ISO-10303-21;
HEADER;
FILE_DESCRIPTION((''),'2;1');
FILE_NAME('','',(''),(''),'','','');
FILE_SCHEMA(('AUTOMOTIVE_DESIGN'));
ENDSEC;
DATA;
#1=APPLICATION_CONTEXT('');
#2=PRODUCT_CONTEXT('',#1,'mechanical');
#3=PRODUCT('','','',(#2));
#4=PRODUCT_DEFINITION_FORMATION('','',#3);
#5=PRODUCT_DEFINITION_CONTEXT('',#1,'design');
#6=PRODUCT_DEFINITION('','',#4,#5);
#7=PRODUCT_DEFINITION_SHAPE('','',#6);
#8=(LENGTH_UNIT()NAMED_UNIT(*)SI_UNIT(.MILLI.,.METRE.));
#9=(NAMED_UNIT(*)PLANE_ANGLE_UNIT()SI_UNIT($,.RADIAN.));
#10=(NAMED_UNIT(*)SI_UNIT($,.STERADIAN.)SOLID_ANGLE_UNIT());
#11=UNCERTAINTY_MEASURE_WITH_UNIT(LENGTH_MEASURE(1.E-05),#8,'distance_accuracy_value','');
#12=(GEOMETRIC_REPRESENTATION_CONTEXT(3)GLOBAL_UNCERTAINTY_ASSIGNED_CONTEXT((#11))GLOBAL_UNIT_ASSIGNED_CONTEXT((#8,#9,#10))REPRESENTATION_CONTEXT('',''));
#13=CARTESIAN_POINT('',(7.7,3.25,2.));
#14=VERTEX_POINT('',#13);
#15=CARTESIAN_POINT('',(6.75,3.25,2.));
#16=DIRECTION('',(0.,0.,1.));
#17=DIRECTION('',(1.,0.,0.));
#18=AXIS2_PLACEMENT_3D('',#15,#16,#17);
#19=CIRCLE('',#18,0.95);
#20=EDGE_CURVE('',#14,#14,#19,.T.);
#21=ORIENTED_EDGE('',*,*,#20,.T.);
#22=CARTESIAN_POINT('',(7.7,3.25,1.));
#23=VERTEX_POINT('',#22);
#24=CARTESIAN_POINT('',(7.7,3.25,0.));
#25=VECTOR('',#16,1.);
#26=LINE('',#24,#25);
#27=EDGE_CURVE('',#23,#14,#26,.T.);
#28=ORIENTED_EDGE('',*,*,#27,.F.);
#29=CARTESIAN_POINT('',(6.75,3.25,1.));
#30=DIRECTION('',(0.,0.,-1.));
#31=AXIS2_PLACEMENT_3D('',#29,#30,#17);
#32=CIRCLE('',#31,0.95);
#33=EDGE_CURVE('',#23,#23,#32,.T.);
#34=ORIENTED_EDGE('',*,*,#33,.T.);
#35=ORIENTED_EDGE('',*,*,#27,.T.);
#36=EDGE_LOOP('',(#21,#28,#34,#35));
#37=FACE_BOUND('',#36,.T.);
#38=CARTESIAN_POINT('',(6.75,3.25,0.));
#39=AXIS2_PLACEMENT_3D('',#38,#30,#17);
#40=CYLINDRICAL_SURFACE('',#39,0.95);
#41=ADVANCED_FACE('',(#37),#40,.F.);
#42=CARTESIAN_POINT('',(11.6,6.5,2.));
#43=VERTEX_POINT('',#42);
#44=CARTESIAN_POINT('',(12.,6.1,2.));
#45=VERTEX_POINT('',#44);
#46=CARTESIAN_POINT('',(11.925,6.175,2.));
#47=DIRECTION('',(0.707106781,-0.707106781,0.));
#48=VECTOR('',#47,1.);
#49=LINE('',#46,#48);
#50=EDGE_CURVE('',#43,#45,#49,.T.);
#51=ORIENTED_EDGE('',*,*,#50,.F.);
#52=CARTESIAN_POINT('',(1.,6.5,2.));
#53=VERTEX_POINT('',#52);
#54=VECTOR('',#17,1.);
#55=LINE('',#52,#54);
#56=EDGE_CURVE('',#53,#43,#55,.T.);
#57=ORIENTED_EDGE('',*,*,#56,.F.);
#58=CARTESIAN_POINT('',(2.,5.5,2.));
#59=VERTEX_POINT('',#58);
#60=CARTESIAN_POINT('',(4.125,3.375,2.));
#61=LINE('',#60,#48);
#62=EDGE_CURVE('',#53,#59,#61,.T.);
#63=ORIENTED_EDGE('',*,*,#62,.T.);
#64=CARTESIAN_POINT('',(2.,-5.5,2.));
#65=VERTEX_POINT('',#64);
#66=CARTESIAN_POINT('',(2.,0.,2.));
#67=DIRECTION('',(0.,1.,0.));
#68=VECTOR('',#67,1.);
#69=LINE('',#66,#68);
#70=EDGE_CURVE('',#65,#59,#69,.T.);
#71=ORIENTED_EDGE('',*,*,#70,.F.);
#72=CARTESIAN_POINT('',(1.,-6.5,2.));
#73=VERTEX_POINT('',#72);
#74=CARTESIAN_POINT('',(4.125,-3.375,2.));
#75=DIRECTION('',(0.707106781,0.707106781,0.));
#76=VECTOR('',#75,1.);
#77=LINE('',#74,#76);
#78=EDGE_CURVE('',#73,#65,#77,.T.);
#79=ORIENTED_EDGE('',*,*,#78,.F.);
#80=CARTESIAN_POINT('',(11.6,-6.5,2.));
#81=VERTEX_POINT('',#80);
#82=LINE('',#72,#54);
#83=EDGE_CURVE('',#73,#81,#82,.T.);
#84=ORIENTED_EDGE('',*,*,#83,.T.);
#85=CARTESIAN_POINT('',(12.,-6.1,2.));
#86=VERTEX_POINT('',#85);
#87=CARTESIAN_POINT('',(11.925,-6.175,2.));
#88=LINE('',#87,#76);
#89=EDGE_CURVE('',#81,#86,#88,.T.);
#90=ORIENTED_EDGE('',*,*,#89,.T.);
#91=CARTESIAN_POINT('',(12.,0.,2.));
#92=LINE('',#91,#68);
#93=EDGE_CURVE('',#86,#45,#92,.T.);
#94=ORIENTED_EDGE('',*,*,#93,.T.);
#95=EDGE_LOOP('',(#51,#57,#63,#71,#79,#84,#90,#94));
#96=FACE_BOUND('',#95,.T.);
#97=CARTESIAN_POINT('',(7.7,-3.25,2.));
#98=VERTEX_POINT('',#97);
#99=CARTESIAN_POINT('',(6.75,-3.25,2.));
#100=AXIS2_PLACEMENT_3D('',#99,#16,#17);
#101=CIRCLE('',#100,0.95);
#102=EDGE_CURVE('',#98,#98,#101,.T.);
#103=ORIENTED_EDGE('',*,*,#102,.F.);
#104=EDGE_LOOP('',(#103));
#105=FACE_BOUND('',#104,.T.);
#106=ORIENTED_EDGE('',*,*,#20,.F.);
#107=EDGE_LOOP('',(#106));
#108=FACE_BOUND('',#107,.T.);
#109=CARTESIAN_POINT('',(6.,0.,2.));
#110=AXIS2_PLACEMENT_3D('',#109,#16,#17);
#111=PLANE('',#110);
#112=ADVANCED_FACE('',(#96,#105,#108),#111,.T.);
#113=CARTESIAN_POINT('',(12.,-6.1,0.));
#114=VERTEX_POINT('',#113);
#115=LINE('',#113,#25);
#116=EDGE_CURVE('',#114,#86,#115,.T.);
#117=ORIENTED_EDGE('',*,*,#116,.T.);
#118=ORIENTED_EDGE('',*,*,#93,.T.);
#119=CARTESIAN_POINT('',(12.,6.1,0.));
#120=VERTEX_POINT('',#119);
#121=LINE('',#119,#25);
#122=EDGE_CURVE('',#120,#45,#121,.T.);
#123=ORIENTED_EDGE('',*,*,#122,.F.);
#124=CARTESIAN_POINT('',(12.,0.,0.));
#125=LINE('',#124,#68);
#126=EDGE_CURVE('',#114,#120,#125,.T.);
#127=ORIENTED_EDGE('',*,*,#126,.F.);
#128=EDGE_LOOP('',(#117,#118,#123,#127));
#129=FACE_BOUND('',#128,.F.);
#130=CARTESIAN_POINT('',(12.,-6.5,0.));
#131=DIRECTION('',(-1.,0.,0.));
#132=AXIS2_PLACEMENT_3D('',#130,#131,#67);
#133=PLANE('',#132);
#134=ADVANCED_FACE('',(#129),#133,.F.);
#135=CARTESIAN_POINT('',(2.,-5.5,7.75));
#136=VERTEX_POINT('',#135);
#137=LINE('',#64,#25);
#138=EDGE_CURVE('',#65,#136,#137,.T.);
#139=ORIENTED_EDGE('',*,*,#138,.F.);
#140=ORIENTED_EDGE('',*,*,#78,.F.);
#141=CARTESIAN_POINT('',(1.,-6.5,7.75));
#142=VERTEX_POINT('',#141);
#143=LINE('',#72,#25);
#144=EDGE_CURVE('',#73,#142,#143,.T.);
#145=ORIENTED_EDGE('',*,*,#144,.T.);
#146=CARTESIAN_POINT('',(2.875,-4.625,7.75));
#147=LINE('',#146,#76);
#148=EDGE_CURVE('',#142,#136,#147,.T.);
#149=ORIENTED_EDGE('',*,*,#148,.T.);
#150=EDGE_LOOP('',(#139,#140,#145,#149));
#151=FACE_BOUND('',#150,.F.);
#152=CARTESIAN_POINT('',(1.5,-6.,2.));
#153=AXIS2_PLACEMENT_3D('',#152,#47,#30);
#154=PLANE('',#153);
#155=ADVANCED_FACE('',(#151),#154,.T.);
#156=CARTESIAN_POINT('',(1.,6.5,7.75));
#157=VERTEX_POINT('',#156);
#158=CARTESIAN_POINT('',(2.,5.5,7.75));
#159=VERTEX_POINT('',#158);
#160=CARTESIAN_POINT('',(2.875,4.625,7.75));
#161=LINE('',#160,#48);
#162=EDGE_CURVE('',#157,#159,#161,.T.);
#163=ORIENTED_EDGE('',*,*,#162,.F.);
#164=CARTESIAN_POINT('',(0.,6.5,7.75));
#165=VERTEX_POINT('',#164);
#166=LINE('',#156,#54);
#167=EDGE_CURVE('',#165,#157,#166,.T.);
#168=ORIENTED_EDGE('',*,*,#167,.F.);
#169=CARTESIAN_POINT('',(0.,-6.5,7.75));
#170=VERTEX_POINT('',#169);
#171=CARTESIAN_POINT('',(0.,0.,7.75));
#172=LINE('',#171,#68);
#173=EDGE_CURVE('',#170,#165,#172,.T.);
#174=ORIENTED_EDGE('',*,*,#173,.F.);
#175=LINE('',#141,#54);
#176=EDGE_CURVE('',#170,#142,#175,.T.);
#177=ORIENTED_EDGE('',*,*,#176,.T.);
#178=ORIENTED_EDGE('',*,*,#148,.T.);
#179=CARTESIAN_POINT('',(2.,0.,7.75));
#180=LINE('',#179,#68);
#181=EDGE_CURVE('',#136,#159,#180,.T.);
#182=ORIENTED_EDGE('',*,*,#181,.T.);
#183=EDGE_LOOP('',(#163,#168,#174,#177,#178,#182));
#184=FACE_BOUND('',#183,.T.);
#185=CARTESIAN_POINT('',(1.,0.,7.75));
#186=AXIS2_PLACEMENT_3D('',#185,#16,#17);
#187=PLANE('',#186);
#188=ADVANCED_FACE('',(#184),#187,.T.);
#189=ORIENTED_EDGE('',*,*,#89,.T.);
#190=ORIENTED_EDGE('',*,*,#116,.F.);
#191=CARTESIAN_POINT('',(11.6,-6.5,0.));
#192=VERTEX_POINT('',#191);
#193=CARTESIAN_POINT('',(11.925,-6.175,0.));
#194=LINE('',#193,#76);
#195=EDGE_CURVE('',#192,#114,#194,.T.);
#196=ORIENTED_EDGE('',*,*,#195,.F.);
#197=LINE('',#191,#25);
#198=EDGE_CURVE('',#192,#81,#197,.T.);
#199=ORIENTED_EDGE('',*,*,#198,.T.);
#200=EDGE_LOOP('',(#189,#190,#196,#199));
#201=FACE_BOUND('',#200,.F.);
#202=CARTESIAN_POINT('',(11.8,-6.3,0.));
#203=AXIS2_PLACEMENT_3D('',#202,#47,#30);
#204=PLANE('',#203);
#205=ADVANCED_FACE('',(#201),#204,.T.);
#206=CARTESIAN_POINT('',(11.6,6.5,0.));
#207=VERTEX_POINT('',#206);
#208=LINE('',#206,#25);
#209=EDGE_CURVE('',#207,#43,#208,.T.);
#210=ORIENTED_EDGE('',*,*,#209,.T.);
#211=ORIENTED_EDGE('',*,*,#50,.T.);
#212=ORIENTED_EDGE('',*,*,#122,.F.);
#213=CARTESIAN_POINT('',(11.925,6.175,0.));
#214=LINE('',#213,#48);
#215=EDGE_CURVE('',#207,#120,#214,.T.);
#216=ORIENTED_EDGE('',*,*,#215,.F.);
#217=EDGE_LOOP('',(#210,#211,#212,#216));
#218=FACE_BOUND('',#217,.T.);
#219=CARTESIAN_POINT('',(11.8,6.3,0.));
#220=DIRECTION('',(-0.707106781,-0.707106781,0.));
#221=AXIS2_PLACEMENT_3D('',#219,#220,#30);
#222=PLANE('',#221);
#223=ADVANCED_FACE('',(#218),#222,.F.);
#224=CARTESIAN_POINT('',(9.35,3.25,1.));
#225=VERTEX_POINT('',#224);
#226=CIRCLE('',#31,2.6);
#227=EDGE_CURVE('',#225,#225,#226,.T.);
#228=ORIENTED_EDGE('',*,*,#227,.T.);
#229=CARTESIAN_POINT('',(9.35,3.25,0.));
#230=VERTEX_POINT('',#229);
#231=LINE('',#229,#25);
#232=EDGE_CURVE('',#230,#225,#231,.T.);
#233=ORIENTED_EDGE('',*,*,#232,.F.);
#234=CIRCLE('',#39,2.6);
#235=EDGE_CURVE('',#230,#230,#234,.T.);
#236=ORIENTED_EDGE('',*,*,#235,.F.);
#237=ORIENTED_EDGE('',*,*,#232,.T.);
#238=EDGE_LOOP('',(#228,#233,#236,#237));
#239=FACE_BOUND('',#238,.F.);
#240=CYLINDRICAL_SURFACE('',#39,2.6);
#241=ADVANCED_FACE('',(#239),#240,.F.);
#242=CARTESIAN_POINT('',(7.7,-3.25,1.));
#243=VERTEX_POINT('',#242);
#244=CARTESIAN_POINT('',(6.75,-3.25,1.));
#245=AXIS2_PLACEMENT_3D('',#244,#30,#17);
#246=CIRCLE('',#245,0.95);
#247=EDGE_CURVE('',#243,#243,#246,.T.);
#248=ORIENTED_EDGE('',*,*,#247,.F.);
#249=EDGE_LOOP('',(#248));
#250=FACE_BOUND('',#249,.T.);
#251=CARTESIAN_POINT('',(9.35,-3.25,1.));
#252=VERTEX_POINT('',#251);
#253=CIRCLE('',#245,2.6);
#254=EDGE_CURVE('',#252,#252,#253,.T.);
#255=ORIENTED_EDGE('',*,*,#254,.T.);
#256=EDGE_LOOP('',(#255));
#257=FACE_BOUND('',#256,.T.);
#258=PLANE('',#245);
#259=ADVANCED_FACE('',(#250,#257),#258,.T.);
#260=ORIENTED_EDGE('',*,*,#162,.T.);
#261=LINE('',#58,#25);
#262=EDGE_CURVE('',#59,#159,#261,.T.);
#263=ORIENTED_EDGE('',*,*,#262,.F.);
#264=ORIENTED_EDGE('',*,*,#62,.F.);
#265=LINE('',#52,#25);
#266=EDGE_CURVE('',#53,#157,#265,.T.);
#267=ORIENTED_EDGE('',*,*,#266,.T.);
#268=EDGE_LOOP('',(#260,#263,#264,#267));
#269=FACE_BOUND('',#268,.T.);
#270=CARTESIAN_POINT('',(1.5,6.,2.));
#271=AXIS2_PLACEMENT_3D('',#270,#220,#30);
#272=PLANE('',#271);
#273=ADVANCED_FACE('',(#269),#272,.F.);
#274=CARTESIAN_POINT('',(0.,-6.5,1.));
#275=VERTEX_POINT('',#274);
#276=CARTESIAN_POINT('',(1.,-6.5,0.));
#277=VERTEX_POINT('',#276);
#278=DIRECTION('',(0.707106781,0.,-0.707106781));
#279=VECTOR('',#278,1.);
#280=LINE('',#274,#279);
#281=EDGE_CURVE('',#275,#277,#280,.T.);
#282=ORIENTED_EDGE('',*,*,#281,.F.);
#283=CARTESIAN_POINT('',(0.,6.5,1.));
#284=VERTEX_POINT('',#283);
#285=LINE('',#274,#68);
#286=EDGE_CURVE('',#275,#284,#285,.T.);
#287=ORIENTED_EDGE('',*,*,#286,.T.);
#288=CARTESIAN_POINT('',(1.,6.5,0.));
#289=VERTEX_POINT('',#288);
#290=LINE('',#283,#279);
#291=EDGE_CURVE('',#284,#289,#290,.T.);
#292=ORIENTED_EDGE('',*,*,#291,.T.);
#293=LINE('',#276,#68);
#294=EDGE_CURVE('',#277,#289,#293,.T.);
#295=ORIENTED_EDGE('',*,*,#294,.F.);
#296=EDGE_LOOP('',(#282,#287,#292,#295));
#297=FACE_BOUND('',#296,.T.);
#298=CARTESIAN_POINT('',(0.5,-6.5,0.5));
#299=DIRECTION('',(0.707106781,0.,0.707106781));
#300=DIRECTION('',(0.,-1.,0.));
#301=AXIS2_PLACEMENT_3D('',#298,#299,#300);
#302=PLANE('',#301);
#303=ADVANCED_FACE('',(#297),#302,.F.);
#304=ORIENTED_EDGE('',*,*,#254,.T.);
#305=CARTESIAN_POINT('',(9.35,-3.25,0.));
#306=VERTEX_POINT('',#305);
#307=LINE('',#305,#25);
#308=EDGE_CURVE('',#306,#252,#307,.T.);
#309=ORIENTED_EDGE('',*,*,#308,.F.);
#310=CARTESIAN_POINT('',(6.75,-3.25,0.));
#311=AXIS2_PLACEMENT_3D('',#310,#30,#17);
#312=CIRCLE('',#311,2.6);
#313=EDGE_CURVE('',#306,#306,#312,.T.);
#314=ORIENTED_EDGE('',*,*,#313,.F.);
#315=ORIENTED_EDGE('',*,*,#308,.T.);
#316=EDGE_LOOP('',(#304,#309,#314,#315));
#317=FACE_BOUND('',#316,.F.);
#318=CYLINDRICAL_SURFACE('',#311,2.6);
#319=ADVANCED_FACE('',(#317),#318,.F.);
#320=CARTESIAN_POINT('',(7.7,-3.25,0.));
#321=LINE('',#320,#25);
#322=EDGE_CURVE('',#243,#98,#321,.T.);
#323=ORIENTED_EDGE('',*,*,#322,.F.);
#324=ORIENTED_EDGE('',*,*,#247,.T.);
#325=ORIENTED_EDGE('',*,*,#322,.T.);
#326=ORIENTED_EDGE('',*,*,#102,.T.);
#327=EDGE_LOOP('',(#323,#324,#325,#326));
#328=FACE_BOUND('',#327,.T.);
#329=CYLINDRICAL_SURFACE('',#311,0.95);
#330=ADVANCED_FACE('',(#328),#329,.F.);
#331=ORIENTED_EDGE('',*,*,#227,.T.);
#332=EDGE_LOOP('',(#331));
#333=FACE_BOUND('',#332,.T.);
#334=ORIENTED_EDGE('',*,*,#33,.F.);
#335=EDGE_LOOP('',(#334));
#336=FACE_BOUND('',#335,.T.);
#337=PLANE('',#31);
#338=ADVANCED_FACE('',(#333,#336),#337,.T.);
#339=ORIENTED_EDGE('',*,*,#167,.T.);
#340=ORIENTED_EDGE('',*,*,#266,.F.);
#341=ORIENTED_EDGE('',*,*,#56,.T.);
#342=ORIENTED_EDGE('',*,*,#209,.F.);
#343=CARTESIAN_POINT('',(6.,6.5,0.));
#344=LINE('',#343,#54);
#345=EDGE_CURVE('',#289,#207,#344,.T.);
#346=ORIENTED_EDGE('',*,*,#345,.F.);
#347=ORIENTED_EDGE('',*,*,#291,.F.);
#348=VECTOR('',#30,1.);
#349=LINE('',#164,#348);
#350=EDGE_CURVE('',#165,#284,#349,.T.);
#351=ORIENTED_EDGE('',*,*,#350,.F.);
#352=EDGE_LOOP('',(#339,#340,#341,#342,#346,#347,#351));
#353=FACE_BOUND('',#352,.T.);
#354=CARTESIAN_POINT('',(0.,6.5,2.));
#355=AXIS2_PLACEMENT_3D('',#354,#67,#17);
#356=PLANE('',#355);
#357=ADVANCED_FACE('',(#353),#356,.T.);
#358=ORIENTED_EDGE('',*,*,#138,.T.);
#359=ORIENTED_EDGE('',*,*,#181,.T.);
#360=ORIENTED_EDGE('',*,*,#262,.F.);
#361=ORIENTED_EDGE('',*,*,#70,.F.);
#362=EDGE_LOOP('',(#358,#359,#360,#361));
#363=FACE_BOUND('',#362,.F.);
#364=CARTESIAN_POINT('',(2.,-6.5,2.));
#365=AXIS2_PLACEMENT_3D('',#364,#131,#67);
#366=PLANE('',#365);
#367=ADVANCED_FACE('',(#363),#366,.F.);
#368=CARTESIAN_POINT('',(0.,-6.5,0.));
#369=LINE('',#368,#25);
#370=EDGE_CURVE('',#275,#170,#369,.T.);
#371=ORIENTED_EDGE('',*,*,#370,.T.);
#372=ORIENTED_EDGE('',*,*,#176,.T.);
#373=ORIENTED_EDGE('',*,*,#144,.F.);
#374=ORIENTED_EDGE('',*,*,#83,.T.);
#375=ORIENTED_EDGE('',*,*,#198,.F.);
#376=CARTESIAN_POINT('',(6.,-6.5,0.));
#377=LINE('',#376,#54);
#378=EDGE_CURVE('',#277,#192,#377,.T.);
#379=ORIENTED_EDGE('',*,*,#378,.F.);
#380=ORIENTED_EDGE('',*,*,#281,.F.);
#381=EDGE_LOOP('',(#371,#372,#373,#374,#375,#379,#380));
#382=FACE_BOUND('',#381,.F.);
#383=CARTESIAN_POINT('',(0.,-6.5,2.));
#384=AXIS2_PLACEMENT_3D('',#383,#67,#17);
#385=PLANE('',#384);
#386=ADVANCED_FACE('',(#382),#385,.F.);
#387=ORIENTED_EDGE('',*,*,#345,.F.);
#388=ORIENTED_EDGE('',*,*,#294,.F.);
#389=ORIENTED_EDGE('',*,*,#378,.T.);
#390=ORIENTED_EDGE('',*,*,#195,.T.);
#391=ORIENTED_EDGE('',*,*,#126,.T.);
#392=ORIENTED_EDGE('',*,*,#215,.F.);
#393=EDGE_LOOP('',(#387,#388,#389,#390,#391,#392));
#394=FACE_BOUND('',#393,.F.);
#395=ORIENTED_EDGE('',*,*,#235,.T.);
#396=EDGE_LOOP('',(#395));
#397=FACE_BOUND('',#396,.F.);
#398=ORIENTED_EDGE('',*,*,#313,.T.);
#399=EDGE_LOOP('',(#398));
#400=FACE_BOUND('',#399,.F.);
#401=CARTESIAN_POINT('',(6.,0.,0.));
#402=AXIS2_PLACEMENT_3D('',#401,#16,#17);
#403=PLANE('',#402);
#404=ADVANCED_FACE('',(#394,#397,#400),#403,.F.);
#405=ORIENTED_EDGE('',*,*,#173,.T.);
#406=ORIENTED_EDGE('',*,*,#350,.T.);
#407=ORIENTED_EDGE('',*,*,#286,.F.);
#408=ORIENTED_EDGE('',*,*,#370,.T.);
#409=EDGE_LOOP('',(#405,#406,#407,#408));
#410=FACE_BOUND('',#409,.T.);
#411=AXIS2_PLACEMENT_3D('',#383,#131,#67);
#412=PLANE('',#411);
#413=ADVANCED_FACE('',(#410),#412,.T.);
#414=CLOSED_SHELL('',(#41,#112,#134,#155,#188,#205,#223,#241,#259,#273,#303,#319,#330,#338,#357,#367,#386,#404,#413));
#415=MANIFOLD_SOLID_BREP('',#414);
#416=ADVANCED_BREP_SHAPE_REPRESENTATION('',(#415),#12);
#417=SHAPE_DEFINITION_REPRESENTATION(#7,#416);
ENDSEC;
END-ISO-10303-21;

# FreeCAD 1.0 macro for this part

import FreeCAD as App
import Part
import Sketcher
Q = App.Units.Quantity


def edges_at(feature, points):
    """Names of the edges that pass closest to the given points."""
    edges = feature.Shape.Edges
    near = lambda p: min(range(len(edges)), key=lambda i: edges[i].distToShape(Part.Vertex(*p))[0])
    return sorted({f"Edge{near(p) + 1}" for p in points})

doc = App.newDocument("Part")
params = doc.addObject("Spreadsheet::Sheet", "Params")
for row, (alias, value) in enumerate([
    ("sketch1_diameter", "1.9 mm"),
    ("sketch1_width", "12 mm"),
    ("sketch1_height", "13 mm"),
    ("pad1_length", "2 mm"),
    ("sketch2_width", "2 mm"),
    ("sketch2_height", "13 mm"),
    ("pad2_length", "5.75 mm"),
    ("sketch3_diameter", "5.2 mm"),
    ("pocket1_length", "1 mm"),
    ("chamfer_size", "1 mm"),
    ("chamfer2_size", "1 mm"),
    ("chamfer3_size", "0.4 mm"),
], start=1):
    params.set(f"A{row}", alias)
    params.set(f"B{row}", "=" + value)
    params.setAlias(f"B{row}", alias)

body = doc.addObject("PartDesign::Body", "Body")

# Sketch on XY plane
sketch1 = body.newObject("Sketcher::SketchObject", "Sketch")
sketch1.AttachmentSupport = (doc.getObject("XY_Plane"), [""])
sketch1.MapMode = "FlatFace"
sketch1.addGeometry([
    Part.LineSegment(App.Vector(0, 6.5, 0), App.Vector(0, -6.5, 0)),  # 0
    Part.LineSegment(App.Vector(0, -6.5, 0), App.Vector(12, -6.5, 0)),  # 1
    Part.LineSegment(App.Vector(12, -6.5, 0), App.Vector(12, 6.5, 0)),  # 2
    Part.LineSegment(App.Vector(12, 6.5, 0), App.Vector(0, 6.5, 0)),  # 3
    Part.Circle(App.Vector(6.8, -3.2, 0), App.Vector(0, 0, 1), 0.9),  # 4
    Part.Circle(App.Vector(6.8, 3.2, 0), App.Vector(0, 0, 1), 0.9),  # 5
], False)
sketch1.addConstraint([
    Sketcher.Constraint("Coincident", 0, 2, 1, 1),
    Sketcher.Constraint("Coincident", 1, 2, 2, 1),
    Sketcher.Constraint("Coincident", 2, 2, 3, 1),
    Sketcher.Constraint("Coincident", 3, 2, 0, 1),
    Sketcher.Constraint("Vertical", 0),
    Sketcher.Constraint("Horizontal", 1),
    Sketcher.Constraint("Vertical", 2),
    Sketcher.Constraint("Horizontal", 3),
    Sketcher.Constraint("Equal", 4, 5),
    Sketcher.Constraint("Symmetric", 0, 2, 3, 2, -1, 1),
    Sketcher.Constraint("Symmetric", 4, 3, 5, 3, -1),
    Sketcher.Constraint("Diameter", 4, Q("1.9 mm")),
    Sketcher.Constraint("DistanceX", 1, 1, 1, 2, Q("12 mm")),
    Sketcher.Constraint("DistanceY", 0, 2, 0, 1, Q("13 mm")),
    Sketcher.Constraint("DistanceY", 4, 3, 5, 3, Q("6.5 mm")),
    Sketcher.Constraint("DistanceX", -1, 1, 4, 3, Q("6.75 mm")),
])
sketch1.setExpression("Constraints[11]", "Params.sketch1_diameter")
sketch1.setExpression("Constraints[12]", "Params.sketch1_width")
sketch1.setExpression("Constraints[13]", "Params.sketch1_height")
pad1 = body.newObject("PartDesign::Pad", "Pad")
pad1.Profile = sketch1
pad1.setExpression("Length", "Params.pad1_length")

# Sketch on XY plane
sketch2 = body.newObject("Sketcher::SketchObject", "Sketch001")
sketch2.AttachmentSupport = (doc.getObject("XY_Plane"), [""])
sketch2.MapMode = "FlatFace"
sketch2.AttachmentOffset = App.Placement(App.Vector(0, 0, 2), App.Rotation())
sketch2.addGeometry([
    Part.LineSegment(App.Vector(0, 6.5, 0), App.Vector(0, -6.5, 0)),
    Part.LineSegment(App.Vector(0, -6.5, 0), App.Vector(2, -6.5, 0)),
    Part.LineSegment(App.Vector(2, -6.5, 0), App.Vector(2, 6.5, 0)),
    Part.LineSegment(App.Vector(2, 6.5, 0), App.Vector(0, 6.5, 0)),
], False)
sketch2.addConstraint([
    Sketcher.Constraint("Coincident", 0, 2, 1, 1),
    Sketcher.Constraint("Coincident", 1, 2, 2, 1),
    Sketcher.Constraint("Coincident", 2, 2, 3, 1),
    Sketcher.Constraint("Coincident", 3, 2, 0, 1),
    Sketcher.Constraint("Vertical", 0),
    Sketcher.Constraint("Horizontal", 1),
    Sketcher.Constraint("Vertical", 2),
    Sketcher.Constraint("Horizontal", 3),
    Sketcher.Constraint("Symmetric", 0, 2, 3, 2, -1, 1),
    Sketcher.Constraint("DistanceX", 1, 1, 1, 2, Q("2 mm")),
    Sketcher.Constraint("DistanceY", 0, 2, 0, 1, Q("13 mm")),
])
sketch2.setExpression("Constraints[9]", "Params.sketch2_width")
sketch2.setExpression("Constraints[10]", "Params.sketch2_height")
pad2 = body.newObject("PartDesign::Pad", "Pad001")
pad2.Profile = sketch2
pad2.setExpression("Length", "Params.pad2_length")

# Sketch on XY plane
sketch3 = body.newObject("Sketcher::SketchObject", "Sketch002")
sketch3.AttachmentSupport = (doc.getObject("XY_Plane"), [""])
sketch3.MapMode = "FlatFace"
sketch3.addGeometry([
    Part.Circle(App.Vector(6.8, -3.2, 0), App.Vector(0, 0, 1), 2.6),
    Part.Circle(App.Vector(6.8, 3.2, 0), App.Vector(0, 0, 1), 2.6),
], False)
sketch3.addConstraint([
    Sketcher.Constraint("Equal", 0, 1),
    Sketcher.Constraint("Symmetric", 0, 3, 1, 3, -1),
    Sketcher.Constraint("Diameter", 0, Q("5.2 mm")),
    Sketcher.Constraint("DistanceY", 0, 3, 1, 3, Q("6.5 mm")),
    Sketcher.Constraint("DistanceX", -1, 1, 0, 3, Q("6.75 mm")),
])
sketch3.setExpression("Constraints[2]", "Params.sketch3_diameter")
pocket1 = body.newObject("PartDesign::Pocket", "Pocket")
pocket1.Profile = sketch3
pocket1.setExpression("Length", "Params.pocket1_length")
pocket1.Reversed = True
doc.recompute()

chamfer = body.newObject("PartDesign::Chamfer", "Chamfer")
chamfer.Base = (pocket1, edges_at(pocket1, [(0, 0, 0)]))
chamfer.setExpression("Size", "Params.chamfer_size")
doc.recompute()

chamfer2 = body.newObject("PartDesign::Chamfer", "Chamfer001")
chamfer2.Base = (chamfer, edges_at(chamfer, [(2, 6.5, 4.875), (2, -6.5, 4.875)]))
chamfer2.setExpression("Size", "Params.chamfer2_size")
doc.recompute()

chamfer3 = body.newObject("PartDesign::Chamfer", "Chamfer002")
chamfer3.Base = (chamfer2, edges_at(chamfer2, [(12, 6.5, 1), (12, -6.5, 1)]))
chamfer3.setExpression("Size", "Params.chamfer3_size")

doc.recompute()
